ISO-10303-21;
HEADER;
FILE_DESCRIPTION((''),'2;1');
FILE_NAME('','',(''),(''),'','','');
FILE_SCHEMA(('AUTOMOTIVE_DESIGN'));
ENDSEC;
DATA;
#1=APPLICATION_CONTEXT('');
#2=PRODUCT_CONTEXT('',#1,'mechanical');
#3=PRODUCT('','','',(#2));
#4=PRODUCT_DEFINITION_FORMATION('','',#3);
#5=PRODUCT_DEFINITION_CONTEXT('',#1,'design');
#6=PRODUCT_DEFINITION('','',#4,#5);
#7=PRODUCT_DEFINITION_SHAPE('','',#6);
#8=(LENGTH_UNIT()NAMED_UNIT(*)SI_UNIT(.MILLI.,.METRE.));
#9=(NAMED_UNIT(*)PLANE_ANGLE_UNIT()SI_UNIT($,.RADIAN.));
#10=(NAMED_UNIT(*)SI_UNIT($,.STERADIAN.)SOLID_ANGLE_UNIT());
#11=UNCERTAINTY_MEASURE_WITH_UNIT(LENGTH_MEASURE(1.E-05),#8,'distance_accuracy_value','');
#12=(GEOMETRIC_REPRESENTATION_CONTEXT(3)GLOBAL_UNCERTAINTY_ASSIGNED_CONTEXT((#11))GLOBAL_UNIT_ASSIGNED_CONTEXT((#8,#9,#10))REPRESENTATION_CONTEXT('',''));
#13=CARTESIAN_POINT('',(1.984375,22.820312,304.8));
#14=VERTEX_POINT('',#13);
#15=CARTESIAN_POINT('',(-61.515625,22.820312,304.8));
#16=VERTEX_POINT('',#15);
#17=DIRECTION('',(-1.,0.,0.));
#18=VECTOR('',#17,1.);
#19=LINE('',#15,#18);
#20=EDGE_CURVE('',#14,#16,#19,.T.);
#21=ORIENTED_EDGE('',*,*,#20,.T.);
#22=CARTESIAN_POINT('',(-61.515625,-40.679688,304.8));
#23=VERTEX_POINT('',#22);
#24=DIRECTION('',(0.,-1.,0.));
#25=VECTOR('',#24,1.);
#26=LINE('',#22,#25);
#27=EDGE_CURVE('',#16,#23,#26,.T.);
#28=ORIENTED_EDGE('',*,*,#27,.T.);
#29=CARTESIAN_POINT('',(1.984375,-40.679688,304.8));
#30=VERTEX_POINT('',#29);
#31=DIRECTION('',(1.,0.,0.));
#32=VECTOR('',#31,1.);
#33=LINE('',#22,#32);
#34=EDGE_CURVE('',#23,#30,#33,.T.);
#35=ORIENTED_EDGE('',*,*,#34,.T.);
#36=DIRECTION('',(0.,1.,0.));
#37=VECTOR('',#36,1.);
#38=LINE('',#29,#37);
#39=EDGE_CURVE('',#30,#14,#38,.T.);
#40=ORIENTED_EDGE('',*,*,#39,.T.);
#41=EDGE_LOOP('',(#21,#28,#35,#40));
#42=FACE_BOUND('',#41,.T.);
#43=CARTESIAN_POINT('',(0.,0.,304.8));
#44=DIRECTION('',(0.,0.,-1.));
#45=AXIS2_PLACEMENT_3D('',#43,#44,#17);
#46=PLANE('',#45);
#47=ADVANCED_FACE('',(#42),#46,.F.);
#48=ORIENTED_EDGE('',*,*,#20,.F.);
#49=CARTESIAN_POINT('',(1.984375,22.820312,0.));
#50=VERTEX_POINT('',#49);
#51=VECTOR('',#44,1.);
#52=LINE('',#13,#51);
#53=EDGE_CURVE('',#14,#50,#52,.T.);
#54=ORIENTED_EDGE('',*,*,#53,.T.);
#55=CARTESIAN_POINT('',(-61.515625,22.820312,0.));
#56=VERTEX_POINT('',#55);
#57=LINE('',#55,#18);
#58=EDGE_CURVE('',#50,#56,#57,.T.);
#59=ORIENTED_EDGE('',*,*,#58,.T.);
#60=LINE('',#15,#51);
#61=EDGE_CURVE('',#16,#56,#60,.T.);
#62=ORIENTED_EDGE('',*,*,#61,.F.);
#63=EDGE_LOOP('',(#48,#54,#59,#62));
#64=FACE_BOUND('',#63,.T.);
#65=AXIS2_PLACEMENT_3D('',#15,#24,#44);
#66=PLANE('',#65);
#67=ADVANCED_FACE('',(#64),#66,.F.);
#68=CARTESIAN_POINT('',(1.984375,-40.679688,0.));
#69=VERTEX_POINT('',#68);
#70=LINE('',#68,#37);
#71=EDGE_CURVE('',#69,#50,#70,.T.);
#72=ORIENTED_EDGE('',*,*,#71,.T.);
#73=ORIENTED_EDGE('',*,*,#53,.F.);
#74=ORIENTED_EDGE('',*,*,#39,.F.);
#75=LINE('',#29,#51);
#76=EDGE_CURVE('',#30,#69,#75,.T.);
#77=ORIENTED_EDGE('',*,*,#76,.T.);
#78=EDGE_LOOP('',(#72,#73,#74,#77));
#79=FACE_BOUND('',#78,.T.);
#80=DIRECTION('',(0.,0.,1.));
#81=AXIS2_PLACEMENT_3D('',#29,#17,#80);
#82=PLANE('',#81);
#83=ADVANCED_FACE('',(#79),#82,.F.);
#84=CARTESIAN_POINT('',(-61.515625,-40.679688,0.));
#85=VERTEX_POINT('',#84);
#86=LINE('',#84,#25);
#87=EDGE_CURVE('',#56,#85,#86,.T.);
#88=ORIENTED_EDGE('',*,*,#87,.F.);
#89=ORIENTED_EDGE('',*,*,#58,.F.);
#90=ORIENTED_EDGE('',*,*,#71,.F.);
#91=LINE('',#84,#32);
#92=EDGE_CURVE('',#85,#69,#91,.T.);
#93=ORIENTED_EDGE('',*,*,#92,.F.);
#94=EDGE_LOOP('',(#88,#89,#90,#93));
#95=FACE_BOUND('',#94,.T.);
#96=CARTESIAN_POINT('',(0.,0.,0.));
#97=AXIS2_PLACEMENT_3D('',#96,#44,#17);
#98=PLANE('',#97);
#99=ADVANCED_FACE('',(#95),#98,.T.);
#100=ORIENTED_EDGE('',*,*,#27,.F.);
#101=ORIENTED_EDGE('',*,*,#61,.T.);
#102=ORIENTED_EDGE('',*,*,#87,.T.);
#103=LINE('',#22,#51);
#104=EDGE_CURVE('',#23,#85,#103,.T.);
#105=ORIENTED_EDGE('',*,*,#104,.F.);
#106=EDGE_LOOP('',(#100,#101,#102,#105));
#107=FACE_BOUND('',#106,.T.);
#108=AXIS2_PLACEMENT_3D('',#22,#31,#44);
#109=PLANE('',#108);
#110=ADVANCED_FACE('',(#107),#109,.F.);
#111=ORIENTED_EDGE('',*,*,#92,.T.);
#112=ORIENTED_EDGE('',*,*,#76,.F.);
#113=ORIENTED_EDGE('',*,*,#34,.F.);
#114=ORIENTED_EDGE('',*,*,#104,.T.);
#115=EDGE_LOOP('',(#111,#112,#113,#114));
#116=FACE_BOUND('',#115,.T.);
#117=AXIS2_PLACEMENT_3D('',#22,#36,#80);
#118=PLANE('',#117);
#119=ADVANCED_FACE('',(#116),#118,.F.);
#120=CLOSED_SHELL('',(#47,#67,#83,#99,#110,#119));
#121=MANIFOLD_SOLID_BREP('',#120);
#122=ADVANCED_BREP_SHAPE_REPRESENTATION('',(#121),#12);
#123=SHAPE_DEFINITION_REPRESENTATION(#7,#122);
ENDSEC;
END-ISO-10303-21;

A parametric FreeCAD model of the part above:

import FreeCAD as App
import Part
import Sketcher
Q = App.Units.Quantity

doc = App.newDocument("Part")
body = doc.addObject("PartDesign::Body", "Body")

sketch1 = body.newObject("Sketcher::SketchObject", "Sketch")
sketch1.AttachmentSupport = (doc.getObject("XY_Plane"), [""])
sketch1.MapMode = "FlatFace"
sketch1.addGeometry([
    Part.LineSegment(App.Vector(-61.515625, 22.820312, 0), App.Vector(-61.515625, -40.679688, 0)),
    Part.LineSegment(App.Vector(-61.515625, -40.679688, 0), App.Vector(1.984375, -40.679688, 0)),
    Part.LineSegment(App.Vector(1.984375, -40.679688, 0), App.Vector(1.984375, 22.820312, 0)),
    Part.LineSegment(App.Vector(1.984375, 22.820312, 0), App.Vector(-61.515625, 22.820312, 0)),
], False)
sketch1.addConstraint([
    Sketcher.Constraint("Coincident", 0, 2, 1, 1),
    Sketcher.Constraint("Coincident", 1, 2, 2, 1),
    Sketcher.Constraint("Coincident", 2, 2, 3, 1),
    Sketcher.Constraint("Coincident", 3, 2, 0, 1),
    Sketcher.Constraint("Vertical", 0),
    Sketcher.Constraint("Horizontal", 1),
    Sketcher.Constraint("Vertical", 2),
    Sketcher.Constraint("Horizontal", 3),
    Sketcher.Constraint("Equal", 3, 0),
    Sketcher.Constraint("DistanceX", 1, 1, 1, 2, Q("2.5 in")),
    Sketcher.Constraint("DistanceX", 0, 2, -1, 1, Q("2.421875 in")),
    Sketcher.Constraint("DistanceY", 0, 2, -1, 1, 40.679688),
])
pad1 = body.newObject("PartDesign::Pad", "Pad")
pad1.Profile = sketch1
pad1.Length = Q("12 in")

doc.recompute()
